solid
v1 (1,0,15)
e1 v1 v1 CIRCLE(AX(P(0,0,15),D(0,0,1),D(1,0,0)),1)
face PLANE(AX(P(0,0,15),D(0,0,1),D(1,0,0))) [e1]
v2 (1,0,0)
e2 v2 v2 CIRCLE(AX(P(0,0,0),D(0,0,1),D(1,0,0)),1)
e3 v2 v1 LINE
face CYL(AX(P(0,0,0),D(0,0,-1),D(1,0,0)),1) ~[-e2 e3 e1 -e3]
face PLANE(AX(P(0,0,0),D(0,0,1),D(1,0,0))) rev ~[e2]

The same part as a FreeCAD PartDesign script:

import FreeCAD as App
import Part
import Sketcher

V = App.Vector
Q = App.Units.Quantity

doc = App.newDocument("Part")
body = doc.addObject("PartDesign::Body", "Body")

sketch1 = doc.addObject("Sketcher::SketchObject", "Sketch")
body.addObject(sketch1)
sketch1.AttachmentSupport = (doc.XY_Plane, [""])
sketch1.MapMode = "FlatFace"
sketch1.addGeometry(Part.Circle(V(0, 0, 0), V(0, 0, 1), 1), False)
sketch1.addConstraint(Sketcher.Constraint("Coincident", 0, 3, -1, 1))
sketch1.addConstraint(Sketcher.Constraint("Diameter", 0, Q("2 mm")))
pad1 = doc.addObject("PartDesign::Pad", "Pad")
body.addObject(pad1)
pad1.Profile = sketch1
pad1.Length = 15

doc.recompute()
